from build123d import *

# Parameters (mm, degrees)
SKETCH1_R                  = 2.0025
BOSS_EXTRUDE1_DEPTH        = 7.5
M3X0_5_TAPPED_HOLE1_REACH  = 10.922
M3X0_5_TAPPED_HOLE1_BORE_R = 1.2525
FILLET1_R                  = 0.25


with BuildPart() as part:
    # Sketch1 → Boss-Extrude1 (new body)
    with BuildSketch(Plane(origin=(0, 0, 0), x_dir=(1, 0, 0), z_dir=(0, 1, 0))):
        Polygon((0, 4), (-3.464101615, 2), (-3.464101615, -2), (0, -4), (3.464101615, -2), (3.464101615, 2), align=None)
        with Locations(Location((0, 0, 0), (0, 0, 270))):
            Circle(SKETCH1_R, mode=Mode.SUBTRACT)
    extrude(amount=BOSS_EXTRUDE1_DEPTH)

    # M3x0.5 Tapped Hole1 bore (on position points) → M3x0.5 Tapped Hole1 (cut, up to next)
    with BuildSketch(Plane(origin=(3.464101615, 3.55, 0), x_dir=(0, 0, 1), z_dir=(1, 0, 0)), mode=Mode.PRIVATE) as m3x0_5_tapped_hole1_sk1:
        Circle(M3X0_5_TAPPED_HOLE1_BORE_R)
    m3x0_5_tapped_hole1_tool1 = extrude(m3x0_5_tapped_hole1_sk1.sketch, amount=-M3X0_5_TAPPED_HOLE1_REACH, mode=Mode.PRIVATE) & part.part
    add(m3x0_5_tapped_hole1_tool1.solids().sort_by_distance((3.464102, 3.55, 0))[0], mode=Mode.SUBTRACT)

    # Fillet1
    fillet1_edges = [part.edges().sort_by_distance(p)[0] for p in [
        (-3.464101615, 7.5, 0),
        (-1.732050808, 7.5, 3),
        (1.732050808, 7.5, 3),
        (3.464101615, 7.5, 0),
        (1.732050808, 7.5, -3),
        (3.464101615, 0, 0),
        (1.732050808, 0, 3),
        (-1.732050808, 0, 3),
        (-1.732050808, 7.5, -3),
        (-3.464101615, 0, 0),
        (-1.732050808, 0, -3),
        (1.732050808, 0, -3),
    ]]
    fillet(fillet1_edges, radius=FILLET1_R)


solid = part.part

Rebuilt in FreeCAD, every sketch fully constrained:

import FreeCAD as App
import Part
import Sketcher
Q = App.Units.Quantity


def edges_at(feature, points):
    """Names of the edges that pass closest to the given points."""
    edges = feature.Shape.Edges
    near = lambda p: min(range(len(edges)), key=lambda i: edges[i].distToShape(Part.Vertex(*p))[0])
    return sorted({f"Edge{near(p) + 1}" for p in points})


def add_polygon(sketch, points):
    """Adds a closed chain of lines whose ends are joined by coincident constraints."""
    first, n = sketch.GeometryCount, len(points)
    for a, b in zip(points, points[1:] + points[:1]):
        sketch.addGeometry(Part.LineSegment(App.Vector(*a, 0), App.Vector(*b, 0)), False)
    for i in range(n):
        sketch.addConstraint(Sketcher.Constraint("Coincident", first + i, 2, first + (i + 1) % n, 1))

doc = App.newDocument("Part")
params = doc.addObject("Spreadsheet::Sheet", "Params")
for row, (alias, value) in enumerate([
    ("sketch1_height", "4 mm"),
    ("sketch1_length", "4 mm"),
    ("pad1_length", "7.5 mm"),
    ("pocket1_length", "1.901652 mm"),
    ("fillet_radius", "0.25 mm"),
], start=1):
    params.set(f"A{row}", alias)
    params.set(f"B{row}", "=" + value)
    params.setAlias(f"B{row}", alias)

body = doc.addObject("PartDesign::Body", "Body")

sketch1 = doc.addObject("Sketcher::SketchObject", "Sketch")
body.addObject(sketch1)
sketch1.AttachmentSupport = (doc.XZ_Plane, [""])
sketch1.MapMode = "FlatFace"
add_polygon(sketch1, [(0, -4), (-3.464102, -2), (-3.464102, 2), (0, 4), (3.464102, 2), (3.464102, -2)])
sketch1.addGeometry(Part.Circle(App.Vector(0, 0, 0), App.Vector(0, 0, 1), 2.0025), False)
sketch1.addConstraint([
    Sketcher.Constraint("Vertical", 1),
    Sketcher.Constraint("Vertical", 4),
    Sketcher.Constraint("Coincident", 6, 3, -1, 1),
    Sketcher.Constraint("Symmetric", 0, 2, 3, 2, -1, 1),
    Sketcher.Constraint("Symmetric", 2, 2, 5, 2, -1, 1),
    Sketcher.Constraint("PointOnObject", 2, 2, -2),
    Sketcher.Constraint("Parallel", 2, 5),
    Sketcher.Constraint("Horizontal", 1, 2, 3, 2),
    Sketcher.Constraint("DistanceY", 1, 1, 1, 2, Q("4 mm")),
    Sketcher.Constraint("Angle", 0, Q("150 deg")),
    Sketcher.Constraint("Distance", 0, Q("4 mm")),
    Sketcher.Constraint("Diameter", 6, Q("4.005 mm")),
])
sketch1.setExpression("Constraints[14]", "Params.sketch1_height")
sketch1.setExpression("Constraints[16]", "Params.sketch1_length")
pad1 = doc.addObject("PartDesign::Pad", "Pad")
body.addObject(pad1)
pad1.Profile = sketch1
pad1.setExpression("Length", "Params.pad1_length")
pad1.Reversed = True

sketch2 = doc.addObject("Sketcher::SketchObject", "Sketch001")
body.addObject(sketch2)
sketch2.AttachmentSupport = (doc.YZ_Plane, [""])
sketch2.MapMode = "FlatFace"
sketch2.AttachmentOffset = App.Placement(App.Vector(0, 0, 3.464102), App.Rotation())
sketch2.addGeometry(Part.Circle(App.Vector(3.55, 0, 0), App.Vector(0, 0, 1), 1.2525), False)
sketch2.addConstraint([
    Sketcher.Constraint("PointOnObject", 0, 3, -1),
    Sketcher.Constraint("Diameter", 0, Q("2.505 mm")),
    Sketcher.Constraint("DistanceX", -1, 1, 0, 3, Q("3.55 mm")),
])
pocket1 = doc.addObject("PartDesign::Pocket", "Pocket")
body.addObject(pocket1)
pocket1.Profile = sketch2
pocket1.setExpression("Length", "Params.pocket1_length")
doc.recompute()

fillet = doc.addObject("PartDesign::Fillet", "Fillet")
body.addObject(fillet)
fillet.Base = (pocket1, edges_at(pocket1, [
    (-3.464, 7.5, 0),
    (-1.732, 7.5, 3),
    (1.732, 7.5, 3),
    (3.464, 7.5, 0),
    (1.732, 7.5, -3),
    (3.464, 0, 0),
    (1.732, 0, 3),
    (-1.732, 0, 3),
    (-1.732, 7.5, -3),
    (-3.464, 0, 0),
    (-1.732, 0, -3),
    (1.732, 0, -3),
]))
fillet.setExpression("Radius", "Params.fillet_radius")

doc.recompute()
